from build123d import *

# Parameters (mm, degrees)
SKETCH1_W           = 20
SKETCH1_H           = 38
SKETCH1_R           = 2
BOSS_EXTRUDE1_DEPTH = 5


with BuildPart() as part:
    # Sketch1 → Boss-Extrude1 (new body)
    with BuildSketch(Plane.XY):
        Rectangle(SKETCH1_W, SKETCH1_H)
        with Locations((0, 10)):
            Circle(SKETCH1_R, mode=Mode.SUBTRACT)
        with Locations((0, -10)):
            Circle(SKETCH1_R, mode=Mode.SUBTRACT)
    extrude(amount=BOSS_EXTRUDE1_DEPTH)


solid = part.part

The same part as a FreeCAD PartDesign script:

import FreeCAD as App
import Part
import Sketcher

V = App.Vector


def add_polygon(sketch, points):
    """Adds a closed chain of lines whose ends are joined by coincident constraints."""
    first, n = sketch.GeometryCount, len(points)
    for a, b in zip(points, points[1:] + points[:1]):
        sketch.addGeometry(Part.LineSegment(App.Vector(*a, 0), App.Vector(*b, 0)), False)
    for i in range(n):
        sketch.addConstraint(Sketcher.Constraint("Coincident", first + i, 2, first + (i + 1) % n, 1))

doc = App.newDocument("Part")
body = doc.addObject("PartDesign::Body", "Body")

# Sketch on XY plane
sketch1 = body.newObject("Sketcher::SketchObject", "Sketch")
sketch1.AttachmentSupport = (doc.getObject("XY_Plane"), [""])
sketch1.MapMode = "FlatFace"
add_polygon(sketch1, [(-10, 19), (-10, -19), (10, -19), (10, 19)])  # lines 0-3
sketch1.addGeometry(Part.Circle(V(0, -10, 0), V(0, 0, 1), 2), False)  # 4
sketch1.addGeometry(Part.Circle(V(0, 10, 0), V(0, 0, 1), 2), False)  # 5
sketch1.addConstraint([
    Sketcher.Constraint("Vertical", 0),
    Sketcher.Constraint("Horizontal", 1),
    Sketcher.Constraint("Vertical", 2),
    Sketcher.Constraint("Horizontal", 3),
    Sketcher.Constraint("Equal", 4, 5),
    Sketcher.Constraint("Symmetric", 4, 3, 5, 3, -1, 1),
    Sketcher.Constraint("Symmetric", 0, 2, 2, 2, -1, 1),
    Sketcher.Constraint("PointOnObject", 4, 3, -2),
    Sketcher.Constraint("Diameter", 4, 4.0),
    Sketcher.Constraint("DistanceX", 1, 1, 1, 2, 20.0),
    Sketcher.Constraint("DistanceY", 0, 2, 0, 1, 38.0),
    Sketcher.Constraint("DistanceY", 4, 3, -1, 1, 10.0),
])
pad1 = body.newObject("PartDesign::Pad", "Pad")
pad1.Profile = sketch1
pad1.Length = 5

doc.recompute()
